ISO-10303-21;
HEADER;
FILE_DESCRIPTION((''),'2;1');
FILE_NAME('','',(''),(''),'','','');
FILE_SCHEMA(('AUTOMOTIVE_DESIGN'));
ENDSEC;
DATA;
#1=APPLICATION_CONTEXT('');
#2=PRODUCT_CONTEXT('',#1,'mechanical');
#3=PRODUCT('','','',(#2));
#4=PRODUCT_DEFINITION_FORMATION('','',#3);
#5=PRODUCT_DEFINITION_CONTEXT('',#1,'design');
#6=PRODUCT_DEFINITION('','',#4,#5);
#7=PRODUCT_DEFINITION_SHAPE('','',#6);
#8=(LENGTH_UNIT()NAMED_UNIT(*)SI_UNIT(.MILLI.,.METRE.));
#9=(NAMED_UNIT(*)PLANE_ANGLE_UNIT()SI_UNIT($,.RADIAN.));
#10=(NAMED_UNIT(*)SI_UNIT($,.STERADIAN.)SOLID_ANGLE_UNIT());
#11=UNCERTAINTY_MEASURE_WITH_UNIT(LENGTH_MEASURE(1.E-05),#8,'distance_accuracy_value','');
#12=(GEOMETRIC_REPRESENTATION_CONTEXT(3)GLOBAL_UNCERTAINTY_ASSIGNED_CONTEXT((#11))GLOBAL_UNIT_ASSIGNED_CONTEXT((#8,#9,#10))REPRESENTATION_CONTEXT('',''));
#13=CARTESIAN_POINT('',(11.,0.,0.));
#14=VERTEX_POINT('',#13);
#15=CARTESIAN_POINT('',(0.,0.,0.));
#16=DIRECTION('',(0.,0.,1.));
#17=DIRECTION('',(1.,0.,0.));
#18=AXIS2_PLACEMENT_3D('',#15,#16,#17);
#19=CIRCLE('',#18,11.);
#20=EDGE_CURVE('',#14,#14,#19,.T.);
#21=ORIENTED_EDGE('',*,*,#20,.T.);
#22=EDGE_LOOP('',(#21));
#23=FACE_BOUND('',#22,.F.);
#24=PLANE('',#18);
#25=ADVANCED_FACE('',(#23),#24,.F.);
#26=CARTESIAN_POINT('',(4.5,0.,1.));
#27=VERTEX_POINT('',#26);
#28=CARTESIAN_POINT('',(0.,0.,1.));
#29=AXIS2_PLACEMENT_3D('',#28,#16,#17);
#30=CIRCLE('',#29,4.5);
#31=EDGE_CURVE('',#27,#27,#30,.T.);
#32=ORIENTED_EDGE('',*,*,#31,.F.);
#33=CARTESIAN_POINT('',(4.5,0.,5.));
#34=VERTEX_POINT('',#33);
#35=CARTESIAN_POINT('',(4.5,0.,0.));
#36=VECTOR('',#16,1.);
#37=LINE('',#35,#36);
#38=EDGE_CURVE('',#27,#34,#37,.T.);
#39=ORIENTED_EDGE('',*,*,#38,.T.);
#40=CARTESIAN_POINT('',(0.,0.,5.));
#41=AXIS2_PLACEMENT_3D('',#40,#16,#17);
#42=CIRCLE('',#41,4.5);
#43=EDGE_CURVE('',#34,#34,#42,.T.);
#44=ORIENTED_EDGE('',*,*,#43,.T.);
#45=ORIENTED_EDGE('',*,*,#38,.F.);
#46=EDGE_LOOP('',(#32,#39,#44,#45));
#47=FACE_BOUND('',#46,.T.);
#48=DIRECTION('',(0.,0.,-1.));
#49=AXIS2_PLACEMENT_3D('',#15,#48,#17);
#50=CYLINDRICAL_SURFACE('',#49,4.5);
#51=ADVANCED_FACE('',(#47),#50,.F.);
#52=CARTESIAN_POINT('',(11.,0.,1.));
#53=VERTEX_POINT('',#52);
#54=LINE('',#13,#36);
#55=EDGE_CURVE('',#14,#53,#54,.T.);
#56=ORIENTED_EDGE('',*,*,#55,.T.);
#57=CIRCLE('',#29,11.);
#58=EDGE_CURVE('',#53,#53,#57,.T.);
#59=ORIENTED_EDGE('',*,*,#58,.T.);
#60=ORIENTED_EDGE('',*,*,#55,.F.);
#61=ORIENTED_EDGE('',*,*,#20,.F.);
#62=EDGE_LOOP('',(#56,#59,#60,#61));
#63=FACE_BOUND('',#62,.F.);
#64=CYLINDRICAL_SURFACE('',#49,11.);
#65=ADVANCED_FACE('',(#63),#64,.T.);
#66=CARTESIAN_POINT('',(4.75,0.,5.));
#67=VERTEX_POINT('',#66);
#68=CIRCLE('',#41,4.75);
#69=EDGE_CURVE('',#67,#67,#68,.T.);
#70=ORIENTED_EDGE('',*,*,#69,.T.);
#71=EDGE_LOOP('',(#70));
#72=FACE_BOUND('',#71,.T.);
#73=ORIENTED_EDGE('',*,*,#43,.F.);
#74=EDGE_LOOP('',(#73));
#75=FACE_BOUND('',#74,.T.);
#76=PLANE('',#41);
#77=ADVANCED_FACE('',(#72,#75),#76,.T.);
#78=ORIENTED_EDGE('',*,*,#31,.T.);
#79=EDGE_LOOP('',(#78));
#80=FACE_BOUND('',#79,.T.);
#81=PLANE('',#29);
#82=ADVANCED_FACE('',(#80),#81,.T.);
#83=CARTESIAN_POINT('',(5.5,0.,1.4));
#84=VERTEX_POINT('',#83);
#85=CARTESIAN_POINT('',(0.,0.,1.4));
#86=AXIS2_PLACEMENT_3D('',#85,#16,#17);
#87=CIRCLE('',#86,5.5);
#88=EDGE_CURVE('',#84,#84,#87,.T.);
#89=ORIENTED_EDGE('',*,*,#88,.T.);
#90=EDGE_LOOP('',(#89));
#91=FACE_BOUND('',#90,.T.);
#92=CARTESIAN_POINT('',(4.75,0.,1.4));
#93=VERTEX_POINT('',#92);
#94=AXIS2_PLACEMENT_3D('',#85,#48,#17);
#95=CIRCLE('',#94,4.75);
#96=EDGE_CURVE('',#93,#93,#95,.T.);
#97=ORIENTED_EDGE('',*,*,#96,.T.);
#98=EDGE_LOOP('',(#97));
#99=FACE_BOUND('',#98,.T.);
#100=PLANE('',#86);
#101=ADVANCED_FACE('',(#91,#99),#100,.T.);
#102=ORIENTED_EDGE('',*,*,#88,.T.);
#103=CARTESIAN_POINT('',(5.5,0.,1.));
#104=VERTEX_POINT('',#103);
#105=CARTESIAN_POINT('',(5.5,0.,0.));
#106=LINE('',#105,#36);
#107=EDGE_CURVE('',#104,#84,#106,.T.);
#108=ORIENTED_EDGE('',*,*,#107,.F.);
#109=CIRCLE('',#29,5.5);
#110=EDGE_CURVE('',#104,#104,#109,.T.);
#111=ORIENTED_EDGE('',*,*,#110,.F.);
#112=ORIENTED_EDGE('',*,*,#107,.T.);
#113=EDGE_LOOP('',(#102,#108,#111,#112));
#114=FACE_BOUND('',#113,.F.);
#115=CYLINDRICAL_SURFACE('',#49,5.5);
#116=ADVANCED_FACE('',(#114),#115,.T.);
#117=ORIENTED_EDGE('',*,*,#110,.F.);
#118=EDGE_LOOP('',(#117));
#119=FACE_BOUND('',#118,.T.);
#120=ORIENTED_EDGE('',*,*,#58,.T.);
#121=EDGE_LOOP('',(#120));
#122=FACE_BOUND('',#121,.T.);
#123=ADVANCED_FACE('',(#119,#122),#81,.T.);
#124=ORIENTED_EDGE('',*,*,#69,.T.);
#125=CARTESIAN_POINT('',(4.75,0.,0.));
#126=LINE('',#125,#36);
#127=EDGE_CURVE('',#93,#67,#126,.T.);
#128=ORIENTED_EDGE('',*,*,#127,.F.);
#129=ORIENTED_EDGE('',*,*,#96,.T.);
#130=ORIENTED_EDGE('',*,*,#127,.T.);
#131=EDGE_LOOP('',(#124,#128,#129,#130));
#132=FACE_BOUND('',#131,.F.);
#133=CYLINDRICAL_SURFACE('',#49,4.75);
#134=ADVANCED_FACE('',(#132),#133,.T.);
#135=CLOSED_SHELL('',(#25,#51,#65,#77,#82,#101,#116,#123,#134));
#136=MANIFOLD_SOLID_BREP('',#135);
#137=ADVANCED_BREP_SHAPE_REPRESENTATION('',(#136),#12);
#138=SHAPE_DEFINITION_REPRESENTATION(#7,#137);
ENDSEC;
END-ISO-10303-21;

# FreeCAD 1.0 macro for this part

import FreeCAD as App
import Part
import Sketcher
Q = App.Units.Quantity

doc = App.newDocument("Part")
body = doc.addObject("PartDesign::Body", "Body")

sketch1 = doc.addObject("Sketcher::SketchObject", "Sketch")
body.addObject(sketch1)
sketch1.AttachmentSupport = (doc.XY_Plane, [""])
sketch1.MapMode = "FlatFace"
sketch1.addGeometry([
    Part.Circle(App.Vector(0, 0, 0), App.Vector(0, 0, 1), 11),
    Part.Circle(App.Vector(0, 0, 0), App.Vector(0, 0, 1), 6),
], False)
sketch1.addConstraint([
    Sketcher.Constraint("Coincident", 0, 3, -1, 1),
    Sketcher.Constraint("Coincident", 1, 3, -1, 1),
    Sketcher.Constraint("Diameter", 0, Q("22 mm")),
    Sketcher.Constraint("Diameter", 1, Q("11 mm")),
])
pad1 = doc.addObject("PartDesign::Pad", "Pad")
body.addObject(pad1)
pad1.Profile = sketch1
pad1.Length = 1

sketch2 = doc.addObject("Sketcher::SketchObject", "Sketch001")
body.addObject(sketch2)
sketch2.AttachmentSupport = (doc.XY_Plane, [""])
sketch2.MapMode = "FlatFace"
sketch2.addGeometry([
    Part.Circle(App.Vector(0, 0, 0), App.Vector(0, 0, 1), 5.5),
    Part.Circle(App.Vector(0, 0, 0), App.Vector(0, 0, 1), 4.5),
], False)
sketch2.addConstraint([
    Sketcher.Constraint("Coincident", 0, 3, -1, 1),
    Sketcher.Constraint("Coincident", 1, 3, -1, 1),
    Sketcher.Constraint("Diameter", 0, Q("11 mm")),
    Sketcher.Constraint("Diameter", 1, Q("9 mm")),
])
pad2 = doc.addObject("PartDesign::Pad", "Pad001")
body.addObject(pad2)
pad2.Profile = sketch2
pad2.Length = 1.4

sketch3 = doc.addObject("Sketcher::SketchObject", "Sketch002")
body.addObject(sketch3)
sketch3.AttachmentSupport = (doc.XY_Plane, [""])
sketch3.MapMode = "FlatFace"
sketch3.addGeometry([
    Part.Circle(App.Vector(0, 0, 0), App.Vector(0, 0, 1), 4.8),
    Part.Circle(App.Vector(0, 0, 0), App.Vector(0, 0, 1), 4.5),
], False)
sketch3.addConstraint([
    Sketcher.Constraint("Coincident", 0, 3, -1, 1),
    Sketcher.Constraint("Coincident", 1, 3, -1, 1),
    Sketcher.Constraint("Diameter", 1, Q("9 mm")),
    Sketcher.Constraint("Diameter", 0, Q("9.5 mm")),
])
pad3 = doc.addObject("PartDesign::Pad", "Pad002")
body.addObject(pad3)
pad3.Profile = sketch3
pad3.Length = 5

sketch4 = doc.addObject("Sketcher::SketchObject", "Sketch003")
body.addObject(sketch4)
sketch4.AttachmentSupport = (doc.XY_Plane, [""])
sketch4.MapMode = "FlatFace"
sketch4.addGeometry(Part.Circle(App.Vector(0, 0, 0), App.Vector(0, 0, 1), 4.5), False)
sketch4.addConstraint([
    Sketcher.Constraint("Coincident", 0, 3, -1, 1),
    Sketcher.Constraint("Diameter", 0, Q("9 mm")),
])
pad4 = doc.addObject("PartDesign::Pad", "Pad003")
body.addObject(pad4)
pad4.Profile = sketch4
pad4.Length = 1

doc.recompute()
